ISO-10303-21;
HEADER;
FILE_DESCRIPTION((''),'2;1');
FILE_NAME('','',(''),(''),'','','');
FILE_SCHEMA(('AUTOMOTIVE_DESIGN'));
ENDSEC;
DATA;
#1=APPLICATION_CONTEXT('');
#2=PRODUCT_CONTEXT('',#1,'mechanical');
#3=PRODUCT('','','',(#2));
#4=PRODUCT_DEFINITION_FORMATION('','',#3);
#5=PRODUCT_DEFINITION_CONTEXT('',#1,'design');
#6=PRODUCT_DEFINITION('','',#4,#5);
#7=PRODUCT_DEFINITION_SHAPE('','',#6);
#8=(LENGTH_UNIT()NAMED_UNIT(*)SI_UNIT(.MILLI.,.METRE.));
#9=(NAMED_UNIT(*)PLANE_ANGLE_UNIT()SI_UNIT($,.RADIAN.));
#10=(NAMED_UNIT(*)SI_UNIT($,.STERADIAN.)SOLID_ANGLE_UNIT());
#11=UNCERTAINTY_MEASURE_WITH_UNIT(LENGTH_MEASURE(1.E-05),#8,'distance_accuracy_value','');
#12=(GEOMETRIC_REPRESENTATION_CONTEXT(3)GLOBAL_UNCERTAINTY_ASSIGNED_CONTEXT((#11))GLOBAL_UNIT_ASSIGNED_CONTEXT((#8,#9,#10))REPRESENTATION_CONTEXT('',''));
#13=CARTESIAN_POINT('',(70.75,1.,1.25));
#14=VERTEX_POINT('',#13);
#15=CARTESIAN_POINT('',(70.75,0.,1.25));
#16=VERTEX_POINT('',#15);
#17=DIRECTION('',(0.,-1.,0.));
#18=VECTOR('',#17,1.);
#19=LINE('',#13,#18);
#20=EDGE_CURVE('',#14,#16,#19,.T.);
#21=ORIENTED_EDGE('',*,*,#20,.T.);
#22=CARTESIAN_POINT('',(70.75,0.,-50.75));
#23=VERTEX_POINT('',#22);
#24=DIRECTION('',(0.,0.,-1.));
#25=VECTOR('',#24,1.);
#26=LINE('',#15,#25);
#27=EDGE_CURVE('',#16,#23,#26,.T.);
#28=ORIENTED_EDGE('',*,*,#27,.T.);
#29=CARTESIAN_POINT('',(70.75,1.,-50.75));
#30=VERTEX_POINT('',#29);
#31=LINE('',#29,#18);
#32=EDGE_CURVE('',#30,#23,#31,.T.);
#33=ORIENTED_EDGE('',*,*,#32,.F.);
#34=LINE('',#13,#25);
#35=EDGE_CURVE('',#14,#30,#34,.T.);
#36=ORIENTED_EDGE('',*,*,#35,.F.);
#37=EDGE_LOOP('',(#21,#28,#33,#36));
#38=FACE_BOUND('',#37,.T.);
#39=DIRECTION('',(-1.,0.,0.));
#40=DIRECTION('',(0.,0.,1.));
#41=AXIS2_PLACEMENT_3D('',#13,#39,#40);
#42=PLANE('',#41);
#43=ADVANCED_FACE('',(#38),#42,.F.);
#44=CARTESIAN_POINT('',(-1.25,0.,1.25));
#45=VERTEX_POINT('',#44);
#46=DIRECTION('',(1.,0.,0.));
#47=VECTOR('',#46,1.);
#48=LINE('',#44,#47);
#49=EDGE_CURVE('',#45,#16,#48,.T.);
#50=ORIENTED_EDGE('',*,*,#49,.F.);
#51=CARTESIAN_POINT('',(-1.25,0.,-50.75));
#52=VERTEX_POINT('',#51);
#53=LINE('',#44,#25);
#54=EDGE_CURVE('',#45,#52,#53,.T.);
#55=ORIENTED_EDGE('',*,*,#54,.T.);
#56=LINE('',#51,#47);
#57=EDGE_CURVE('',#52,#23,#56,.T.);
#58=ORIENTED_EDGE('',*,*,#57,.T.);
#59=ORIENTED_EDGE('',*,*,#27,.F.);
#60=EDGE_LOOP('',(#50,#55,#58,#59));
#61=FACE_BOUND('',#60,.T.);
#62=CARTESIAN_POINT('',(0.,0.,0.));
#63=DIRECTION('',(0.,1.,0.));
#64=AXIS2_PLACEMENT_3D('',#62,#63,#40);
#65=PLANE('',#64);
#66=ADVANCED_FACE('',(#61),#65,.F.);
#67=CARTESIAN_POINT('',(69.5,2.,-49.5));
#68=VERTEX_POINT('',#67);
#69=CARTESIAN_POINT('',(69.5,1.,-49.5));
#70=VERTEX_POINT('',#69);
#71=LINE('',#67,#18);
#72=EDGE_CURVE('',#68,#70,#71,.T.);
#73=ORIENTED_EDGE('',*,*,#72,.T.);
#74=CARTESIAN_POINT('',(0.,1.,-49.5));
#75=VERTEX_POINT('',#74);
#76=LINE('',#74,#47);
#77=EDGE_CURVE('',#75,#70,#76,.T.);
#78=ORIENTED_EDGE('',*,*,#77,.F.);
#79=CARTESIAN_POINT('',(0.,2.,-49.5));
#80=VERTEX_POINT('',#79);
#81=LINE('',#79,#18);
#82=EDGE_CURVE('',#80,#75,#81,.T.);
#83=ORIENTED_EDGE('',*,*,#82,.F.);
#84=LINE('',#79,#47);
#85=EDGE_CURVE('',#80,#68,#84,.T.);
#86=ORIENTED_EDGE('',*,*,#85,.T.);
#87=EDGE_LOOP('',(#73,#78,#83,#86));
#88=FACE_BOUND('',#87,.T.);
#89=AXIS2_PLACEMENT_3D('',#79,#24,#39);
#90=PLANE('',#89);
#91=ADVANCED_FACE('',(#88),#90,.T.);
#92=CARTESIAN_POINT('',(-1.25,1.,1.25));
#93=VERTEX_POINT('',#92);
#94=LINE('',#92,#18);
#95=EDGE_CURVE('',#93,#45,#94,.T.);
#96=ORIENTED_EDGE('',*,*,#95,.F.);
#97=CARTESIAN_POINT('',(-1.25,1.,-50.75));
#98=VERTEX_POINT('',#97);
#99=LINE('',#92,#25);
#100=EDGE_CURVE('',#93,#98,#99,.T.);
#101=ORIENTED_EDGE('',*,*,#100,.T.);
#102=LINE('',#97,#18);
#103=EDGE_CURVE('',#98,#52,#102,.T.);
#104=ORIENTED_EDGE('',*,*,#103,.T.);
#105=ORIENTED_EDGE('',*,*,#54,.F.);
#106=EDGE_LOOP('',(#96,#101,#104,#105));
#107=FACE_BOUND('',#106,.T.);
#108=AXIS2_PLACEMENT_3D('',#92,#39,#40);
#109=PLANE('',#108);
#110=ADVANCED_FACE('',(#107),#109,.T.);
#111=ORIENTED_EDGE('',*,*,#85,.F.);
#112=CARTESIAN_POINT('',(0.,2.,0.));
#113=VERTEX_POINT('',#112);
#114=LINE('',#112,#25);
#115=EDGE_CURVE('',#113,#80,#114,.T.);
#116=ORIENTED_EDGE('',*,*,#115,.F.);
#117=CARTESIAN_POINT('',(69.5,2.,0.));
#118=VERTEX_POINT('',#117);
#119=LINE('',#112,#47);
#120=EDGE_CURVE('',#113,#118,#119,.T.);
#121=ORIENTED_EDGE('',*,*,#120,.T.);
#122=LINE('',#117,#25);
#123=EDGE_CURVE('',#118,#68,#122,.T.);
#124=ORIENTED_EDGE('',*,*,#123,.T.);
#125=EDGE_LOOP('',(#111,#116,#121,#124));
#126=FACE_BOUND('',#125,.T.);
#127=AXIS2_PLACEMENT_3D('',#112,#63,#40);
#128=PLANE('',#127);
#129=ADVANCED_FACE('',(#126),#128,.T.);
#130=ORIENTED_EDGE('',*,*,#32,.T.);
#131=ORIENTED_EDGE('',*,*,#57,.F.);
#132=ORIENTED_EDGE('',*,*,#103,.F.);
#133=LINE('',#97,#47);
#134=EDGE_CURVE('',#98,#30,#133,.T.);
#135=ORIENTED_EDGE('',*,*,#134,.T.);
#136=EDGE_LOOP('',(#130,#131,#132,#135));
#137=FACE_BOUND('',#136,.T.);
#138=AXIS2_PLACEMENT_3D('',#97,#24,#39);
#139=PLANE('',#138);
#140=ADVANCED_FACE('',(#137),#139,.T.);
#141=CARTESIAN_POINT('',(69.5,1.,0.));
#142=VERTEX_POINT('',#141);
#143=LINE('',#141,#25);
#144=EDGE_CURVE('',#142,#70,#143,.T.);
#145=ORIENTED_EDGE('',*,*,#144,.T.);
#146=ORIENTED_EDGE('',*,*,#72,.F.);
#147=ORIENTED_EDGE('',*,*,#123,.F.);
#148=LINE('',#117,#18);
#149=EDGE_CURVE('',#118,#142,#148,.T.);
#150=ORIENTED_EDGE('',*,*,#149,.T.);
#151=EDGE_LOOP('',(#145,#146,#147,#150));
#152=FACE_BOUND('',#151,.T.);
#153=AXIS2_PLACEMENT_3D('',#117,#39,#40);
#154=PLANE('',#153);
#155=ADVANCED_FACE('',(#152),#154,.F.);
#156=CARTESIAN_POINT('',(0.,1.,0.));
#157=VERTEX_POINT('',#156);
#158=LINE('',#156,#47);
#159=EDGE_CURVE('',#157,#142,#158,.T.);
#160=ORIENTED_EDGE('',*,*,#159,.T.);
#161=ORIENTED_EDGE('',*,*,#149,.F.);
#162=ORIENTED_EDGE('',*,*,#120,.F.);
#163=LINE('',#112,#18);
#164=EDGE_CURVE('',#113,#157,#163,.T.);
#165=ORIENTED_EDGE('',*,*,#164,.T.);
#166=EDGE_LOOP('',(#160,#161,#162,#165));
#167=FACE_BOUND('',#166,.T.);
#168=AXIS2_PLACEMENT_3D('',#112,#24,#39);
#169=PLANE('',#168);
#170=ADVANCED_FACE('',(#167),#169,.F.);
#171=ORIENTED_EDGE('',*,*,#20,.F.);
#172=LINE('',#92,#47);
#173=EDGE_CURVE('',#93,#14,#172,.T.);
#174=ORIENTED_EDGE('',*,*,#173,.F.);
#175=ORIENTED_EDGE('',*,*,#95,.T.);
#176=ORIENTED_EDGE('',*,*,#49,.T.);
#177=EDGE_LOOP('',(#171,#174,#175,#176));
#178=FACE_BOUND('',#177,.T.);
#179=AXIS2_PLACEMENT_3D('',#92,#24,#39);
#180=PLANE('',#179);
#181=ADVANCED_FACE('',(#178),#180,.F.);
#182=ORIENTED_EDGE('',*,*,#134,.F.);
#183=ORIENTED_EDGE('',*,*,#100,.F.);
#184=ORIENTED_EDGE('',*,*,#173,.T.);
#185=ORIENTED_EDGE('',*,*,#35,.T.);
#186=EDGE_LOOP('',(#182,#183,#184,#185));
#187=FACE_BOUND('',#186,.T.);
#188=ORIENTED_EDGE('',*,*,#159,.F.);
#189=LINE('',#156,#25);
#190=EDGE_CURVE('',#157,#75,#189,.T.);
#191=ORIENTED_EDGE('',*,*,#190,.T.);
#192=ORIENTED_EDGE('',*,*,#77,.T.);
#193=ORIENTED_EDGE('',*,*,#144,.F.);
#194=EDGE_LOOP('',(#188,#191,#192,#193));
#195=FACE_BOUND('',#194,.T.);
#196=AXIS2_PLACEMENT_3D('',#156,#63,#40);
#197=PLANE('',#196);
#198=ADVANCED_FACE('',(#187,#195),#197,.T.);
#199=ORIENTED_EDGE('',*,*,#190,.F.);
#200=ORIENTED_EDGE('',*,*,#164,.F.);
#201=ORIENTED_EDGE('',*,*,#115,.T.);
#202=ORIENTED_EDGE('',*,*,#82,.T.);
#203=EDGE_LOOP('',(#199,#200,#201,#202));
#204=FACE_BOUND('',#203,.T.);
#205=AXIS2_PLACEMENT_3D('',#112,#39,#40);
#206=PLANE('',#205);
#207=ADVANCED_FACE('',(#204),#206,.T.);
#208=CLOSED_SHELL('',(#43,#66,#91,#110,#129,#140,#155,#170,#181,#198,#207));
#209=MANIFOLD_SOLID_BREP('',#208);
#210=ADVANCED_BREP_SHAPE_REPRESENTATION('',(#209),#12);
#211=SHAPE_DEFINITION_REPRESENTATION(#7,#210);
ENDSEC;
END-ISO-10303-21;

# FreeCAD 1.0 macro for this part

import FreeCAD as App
import Part
import Sketcher

V = App.Vector
Q = App.Units.Quantity

doc = App.newDocument("Part")
params = doc.addObject("Spreadsheet::Sheet", "Params")
for row, (alias, value) in enumerate([
    ("sketch1_width", "72 mm"),
    ("sketch1_height", "52 mm"),
    ("sketch1_width2", "69.5 mm"),
    ("sketch1_height2", "49.5 mm"),
    ("pad1_length", "1 mm"),
    ("sketch2_width", "69.5 mm"),
    ("sketch2_height", "49.5 mm"),
    ("pad2_length", "2 mm"),
], start=1):
    params.set(f"A{row}", alias)
    params.set(f"B{row}", "=" + value)
    params.setAlias(f"B{row}", alias)

body = doc.addObject("PartDesign::Body", "Body")

sketch1 = body.newObject("Sketcher::SketchObject", "Sketch")
sketch1.AttachmentSupport = (doc.getObject("XZ_Plane"), [""])
sketch1.MapMode = "FlatFace"
sketch1.addGeometry([
    Part.LineSegment(V(-1, -51, 0), V(-1, 1, 0)),
    Part.LineSegment(V(-1, 1, 0), V(71, 1, 0)),
    Part.LineSegment(V(71, 1, 0), V(71, -51, 0)),
    Part.LineSegment(V(71, -51, 0), V(-1, -51, 0)),
    Part.LineSegment(V(70, 0, 0), V(0, 0, 0)),
    Part.LineSegment(V(0, 0, 0), V(0, -50, 0)),
    Part.LineSegment(V(0, -50, 0), V(70, -50, 0)),
    Part.LineSegment(V(70, -50, 0), V(70, 0, 0)),
], False)
sketch1.addConstraint([
    Sketcher.Constraint("Coincident", 0, 2, 1, 1),
    Sketcher.Constraint("Coincident", 1, 2, 2, 1),
    Sketcher.Constraint("Coincident", 2, 2, 3, 1),
    Sketcher.Constraint("Coincident", 3, 2, 0, 1),
    Sketcher.Constraint("Coincident", 4, 2, 5, 1),
    Sketcher.Constraint("Coincident", 5, 2, 6, 1),
    Sketcher.Constraint("Coincident", 6, 2, 7, 1),
    Sketcher.Constraint("Coincident", 7, 2, 4, 1),
    Sketcher.Constraint("Vertical", 0),
    Sketcher.Constraint("Horizontal", 1),
    Sketcher.Constraint("Vertical", 2),
    Sketcher.Constraint("Horizontal", 3),
    Sketcher.Constraint("Horizontal", 4),
    Sketcher.Constraint("Vertical", 5),
    Sketcher.Constraint("Horizontal", 6),
    Sketcher.Constraint("Vertical", 7),
    Sketcher.Constraint("Coincident", 4, 2, -1, 1),
    Sketcher.Constraint("DistanceX", 1, 1, 1, 2, Q("72 mm")),
    Sketcher.Constraint("DistanceY", 0, 1, 0, 2, Q("52 mm")),
    Sketcher.Constraint("DistanceX", 4, 2, 4, 1, Q("69.5 mm")),
    Sketcher.Constraint("DistanceY", 5, 2, 5, 1, Q("49.5 mm")),
    Sketcher.Constraint("DistanceX", 0, 2, -1, 1, Q("1.25 mm")),
    Sketcher.Constraint("DistanceY", -1, 1, 0, 2, Q("1.25 mm")),
])
sketch1.setExpression("Constraints[17]", "Params.sketch1_width")
sketch1.setExpression("Constraints[18]", "Params.sketch1_height")
sketch1.setExpression("Constraints[19]", "Params.sketch1_width2")
sketch1.setExpression("Constraints[20]", "Params.sketch1_height2")
pad1 = body.newObject("PartDesign::Pad", "Pad")
pad1.Profile = sketch1
pad1.setExpression("Length", "Params.pad1_length")
pad1.Reversed = True

sketch2 = body.newObject("Sketcher::SketchObject", "Sketch001")
sketch2.AttachmentSupport = (doc.getObject("XZ_Plane"), [""])
sketch2.MapMode = "FlatFace"
sketch2.addGeometry([
    Part.LineSegment(V(0, -50, 0), V(0, 0, 0)),
    Part.LineSegment(V(0, 0, 0), V(70, 0, 0)),
    Part.LineSegment(V(70, 0, 0), V(70, -50, 0)),
    Part.LineSegment(V(70, -50, 0), V(0, -50, 0)),
], False)
sketch2.addConstraint([
    Sketcher.Constraint("Coincident", 0, 2, 1, 1),
    Sketcher.Constraint("Coincident", 1, 2, 2, 1),
    Sketcher.Constraint("Coincident", 2, 2, 3, 1),
    Sketcher.Constraint("Coincident", 3, 2, 0, 1),
    Sketcher.Constraint("Vertical", 0),
    Sketcher.Constraint("Horizontal", 1),
    Sketcher.Constraint("Vertical", 2),
    Sketcher.Constraint("Horizontal", 3),
    Sketcher.Constraint("Coincident", 0, 2, -1, 1),
    Sketcher.Constraint("DistanceX", 1, 1, 1, 2, Q("69.5 mm")),
    Sketcher.Constraint("DistanceY", 0, 1, 0, 2, Q("49.5 mm")),
])
sketch2.setExpression("Constraints[9]", "Params.sketch2_width")
sketch2.setExpression("Constraints[10]", "Params.sketch2_height")
pad2 = body.newObject("PartDesign::Pad", "Pad001")
pad2.Profile = sketch2
pad2.setExpression("Length", "Params.pad2_length")
pad2.Reversed = True

doc.recompute()
